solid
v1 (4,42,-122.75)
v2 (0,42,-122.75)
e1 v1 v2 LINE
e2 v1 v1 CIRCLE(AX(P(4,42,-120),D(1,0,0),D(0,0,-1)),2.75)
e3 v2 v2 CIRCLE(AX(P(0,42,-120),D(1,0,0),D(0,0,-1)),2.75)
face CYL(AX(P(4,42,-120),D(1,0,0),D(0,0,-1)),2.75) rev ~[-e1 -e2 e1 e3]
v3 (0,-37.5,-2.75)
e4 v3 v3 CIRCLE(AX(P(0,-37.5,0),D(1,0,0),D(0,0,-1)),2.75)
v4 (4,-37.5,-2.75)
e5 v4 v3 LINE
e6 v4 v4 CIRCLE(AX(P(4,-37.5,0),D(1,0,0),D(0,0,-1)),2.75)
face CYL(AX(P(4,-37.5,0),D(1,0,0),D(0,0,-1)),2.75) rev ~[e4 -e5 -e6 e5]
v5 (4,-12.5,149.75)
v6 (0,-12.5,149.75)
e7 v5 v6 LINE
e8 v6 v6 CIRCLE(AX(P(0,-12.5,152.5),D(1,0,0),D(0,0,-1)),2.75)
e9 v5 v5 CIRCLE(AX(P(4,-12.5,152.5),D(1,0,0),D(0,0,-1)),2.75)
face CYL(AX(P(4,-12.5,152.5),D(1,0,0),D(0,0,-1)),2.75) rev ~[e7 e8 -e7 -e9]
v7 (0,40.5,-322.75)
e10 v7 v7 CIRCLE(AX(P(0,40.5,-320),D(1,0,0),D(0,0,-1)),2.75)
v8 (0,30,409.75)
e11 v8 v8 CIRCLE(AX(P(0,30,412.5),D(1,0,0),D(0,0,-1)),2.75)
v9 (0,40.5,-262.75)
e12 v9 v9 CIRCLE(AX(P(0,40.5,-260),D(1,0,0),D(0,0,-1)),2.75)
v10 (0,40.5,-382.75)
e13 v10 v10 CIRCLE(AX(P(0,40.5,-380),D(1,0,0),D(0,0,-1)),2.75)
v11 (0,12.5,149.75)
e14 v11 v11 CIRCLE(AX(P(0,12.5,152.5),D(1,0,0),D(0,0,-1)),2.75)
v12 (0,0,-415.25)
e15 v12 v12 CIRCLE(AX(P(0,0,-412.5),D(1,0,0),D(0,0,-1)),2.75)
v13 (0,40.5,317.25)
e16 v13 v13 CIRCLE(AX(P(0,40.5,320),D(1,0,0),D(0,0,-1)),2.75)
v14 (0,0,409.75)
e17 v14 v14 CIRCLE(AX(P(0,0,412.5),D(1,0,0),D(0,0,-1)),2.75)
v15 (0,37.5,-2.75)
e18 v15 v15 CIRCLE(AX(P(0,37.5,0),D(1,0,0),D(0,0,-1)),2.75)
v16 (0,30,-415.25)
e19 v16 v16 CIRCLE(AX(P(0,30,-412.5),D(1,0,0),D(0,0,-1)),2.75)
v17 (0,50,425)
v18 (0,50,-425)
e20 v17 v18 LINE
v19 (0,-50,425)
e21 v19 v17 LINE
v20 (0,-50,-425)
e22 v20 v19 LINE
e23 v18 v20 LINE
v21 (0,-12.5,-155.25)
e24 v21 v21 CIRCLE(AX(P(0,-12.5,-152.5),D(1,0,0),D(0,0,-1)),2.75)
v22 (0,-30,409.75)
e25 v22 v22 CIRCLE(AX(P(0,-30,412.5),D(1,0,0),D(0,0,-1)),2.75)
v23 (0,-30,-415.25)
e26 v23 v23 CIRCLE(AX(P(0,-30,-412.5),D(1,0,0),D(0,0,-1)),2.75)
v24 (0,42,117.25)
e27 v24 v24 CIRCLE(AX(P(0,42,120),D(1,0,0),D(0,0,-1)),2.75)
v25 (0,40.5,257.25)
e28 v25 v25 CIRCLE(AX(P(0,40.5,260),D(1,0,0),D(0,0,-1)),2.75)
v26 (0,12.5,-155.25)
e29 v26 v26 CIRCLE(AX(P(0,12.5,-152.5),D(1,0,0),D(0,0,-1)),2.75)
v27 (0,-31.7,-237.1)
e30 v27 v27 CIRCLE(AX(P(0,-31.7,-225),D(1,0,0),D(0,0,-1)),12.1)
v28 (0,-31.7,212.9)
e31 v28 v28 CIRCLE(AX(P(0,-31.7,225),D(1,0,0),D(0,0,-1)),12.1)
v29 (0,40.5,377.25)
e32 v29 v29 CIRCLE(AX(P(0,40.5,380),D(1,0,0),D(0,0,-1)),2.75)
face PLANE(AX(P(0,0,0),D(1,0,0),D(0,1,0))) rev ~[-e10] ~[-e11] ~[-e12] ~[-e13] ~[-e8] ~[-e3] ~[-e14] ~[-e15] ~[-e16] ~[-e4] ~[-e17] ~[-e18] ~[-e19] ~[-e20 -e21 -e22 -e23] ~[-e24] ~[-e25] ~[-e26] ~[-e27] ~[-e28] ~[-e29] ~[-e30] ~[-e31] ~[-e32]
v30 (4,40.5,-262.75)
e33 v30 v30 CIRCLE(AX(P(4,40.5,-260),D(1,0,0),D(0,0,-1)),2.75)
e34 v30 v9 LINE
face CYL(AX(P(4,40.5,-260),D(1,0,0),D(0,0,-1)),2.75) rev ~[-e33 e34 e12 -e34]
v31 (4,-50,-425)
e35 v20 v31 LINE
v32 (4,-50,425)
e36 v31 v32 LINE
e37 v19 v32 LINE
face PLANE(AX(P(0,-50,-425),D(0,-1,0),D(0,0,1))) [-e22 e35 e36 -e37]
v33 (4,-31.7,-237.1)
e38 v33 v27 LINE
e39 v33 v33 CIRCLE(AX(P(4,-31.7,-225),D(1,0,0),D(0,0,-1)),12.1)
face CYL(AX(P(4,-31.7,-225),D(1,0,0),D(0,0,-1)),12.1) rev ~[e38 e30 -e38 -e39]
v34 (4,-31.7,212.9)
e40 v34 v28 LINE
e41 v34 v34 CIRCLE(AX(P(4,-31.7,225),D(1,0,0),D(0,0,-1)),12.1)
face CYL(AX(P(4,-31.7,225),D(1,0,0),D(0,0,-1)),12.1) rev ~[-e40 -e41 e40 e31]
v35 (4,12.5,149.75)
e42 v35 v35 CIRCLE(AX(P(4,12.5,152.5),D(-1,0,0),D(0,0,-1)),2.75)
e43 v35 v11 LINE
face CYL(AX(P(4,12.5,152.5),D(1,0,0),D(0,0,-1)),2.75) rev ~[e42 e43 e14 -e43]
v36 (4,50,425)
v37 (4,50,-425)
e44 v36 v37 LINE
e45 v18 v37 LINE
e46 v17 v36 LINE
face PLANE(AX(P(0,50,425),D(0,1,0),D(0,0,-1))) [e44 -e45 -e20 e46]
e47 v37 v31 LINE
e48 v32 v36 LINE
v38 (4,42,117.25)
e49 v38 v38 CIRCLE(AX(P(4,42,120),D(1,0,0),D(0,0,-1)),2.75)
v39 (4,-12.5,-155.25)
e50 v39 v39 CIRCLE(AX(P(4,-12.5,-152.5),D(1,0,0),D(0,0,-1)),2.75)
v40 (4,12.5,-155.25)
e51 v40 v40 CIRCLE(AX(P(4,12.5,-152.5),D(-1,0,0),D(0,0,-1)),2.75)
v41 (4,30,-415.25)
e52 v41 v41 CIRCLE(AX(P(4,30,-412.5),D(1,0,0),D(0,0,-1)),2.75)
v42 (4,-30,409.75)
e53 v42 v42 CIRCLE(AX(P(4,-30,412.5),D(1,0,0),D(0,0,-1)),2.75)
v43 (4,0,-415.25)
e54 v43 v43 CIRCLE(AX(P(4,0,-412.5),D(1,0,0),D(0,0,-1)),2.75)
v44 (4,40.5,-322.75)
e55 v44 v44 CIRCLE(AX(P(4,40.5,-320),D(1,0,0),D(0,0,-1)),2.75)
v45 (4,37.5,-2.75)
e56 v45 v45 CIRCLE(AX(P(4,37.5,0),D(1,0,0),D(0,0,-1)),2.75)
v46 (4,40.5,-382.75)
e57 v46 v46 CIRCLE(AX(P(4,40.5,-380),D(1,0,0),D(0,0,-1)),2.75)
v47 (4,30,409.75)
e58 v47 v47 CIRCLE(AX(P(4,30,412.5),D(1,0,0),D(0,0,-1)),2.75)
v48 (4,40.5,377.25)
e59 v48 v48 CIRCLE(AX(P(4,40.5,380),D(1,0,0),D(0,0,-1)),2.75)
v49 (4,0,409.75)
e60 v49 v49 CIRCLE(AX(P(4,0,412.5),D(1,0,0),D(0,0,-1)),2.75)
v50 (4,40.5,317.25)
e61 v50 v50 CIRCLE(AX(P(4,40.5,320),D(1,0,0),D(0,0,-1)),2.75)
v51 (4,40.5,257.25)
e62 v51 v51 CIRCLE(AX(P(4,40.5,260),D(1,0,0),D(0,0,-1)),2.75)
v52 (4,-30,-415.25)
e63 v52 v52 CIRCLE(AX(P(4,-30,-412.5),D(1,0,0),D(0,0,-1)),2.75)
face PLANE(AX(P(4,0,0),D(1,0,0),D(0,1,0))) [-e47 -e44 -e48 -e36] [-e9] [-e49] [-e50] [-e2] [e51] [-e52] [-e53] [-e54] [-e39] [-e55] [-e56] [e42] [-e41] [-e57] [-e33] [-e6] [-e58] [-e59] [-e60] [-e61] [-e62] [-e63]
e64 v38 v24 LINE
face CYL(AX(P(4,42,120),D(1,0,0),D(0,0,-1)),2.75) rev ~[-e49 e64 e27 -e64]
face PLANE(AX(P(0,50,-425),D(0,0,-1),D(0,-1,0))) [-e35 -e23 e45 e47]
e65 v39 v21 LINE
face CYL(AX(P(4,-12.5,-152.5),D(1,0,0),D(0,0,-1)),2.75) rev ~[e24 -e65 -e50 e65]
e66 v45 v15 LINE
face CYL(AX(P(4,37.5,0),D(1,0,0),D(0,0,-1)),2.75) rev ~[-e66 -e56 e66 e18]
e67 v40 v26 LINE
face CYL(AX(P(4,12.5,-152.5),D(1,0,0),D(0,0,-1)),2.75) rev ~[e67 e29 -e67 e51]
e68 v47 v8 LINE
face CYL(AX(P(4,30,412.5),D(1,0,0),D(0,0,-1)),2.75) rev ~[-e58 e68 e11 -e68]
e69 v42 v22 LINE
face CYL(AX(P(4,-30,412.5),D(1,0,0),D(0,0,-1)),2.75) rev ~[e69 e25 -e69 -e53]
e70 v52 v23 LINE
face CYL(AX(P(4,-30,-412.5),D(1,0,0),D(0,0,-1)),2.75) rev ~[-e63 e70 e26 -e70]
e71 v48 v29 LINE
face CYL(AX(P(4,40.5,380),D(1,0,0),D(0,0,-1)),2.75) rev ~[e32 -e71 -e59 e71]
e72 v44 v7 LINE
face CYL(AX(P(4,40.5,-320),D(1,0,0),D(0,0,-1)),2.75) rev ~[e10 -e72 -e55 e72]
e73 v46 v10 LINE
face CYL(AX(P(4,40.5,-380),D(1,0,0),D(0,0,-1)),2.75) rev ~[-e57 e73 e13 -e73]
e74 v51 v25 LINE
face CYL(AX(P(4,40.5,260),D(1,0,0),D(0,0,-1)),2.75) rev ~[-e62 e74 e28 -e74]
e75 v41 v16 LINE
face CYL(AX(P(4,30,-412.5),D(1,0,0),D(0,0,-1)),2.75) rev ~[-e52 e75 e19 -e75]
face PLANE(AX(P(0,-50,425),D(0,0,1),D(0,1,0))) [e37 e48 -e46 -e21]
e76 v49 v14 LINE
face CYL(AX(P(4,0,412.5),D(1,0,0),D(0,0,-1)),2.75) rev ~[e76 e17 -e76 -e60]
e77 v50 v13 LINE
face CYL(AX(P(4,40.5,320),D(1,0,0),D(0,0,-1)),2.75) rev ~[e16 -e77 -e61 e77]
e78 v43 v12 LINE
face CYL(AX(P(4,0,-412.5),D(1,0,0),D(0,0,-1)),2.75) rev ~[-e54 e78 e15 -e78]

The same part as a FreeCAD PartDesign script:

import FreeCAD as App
import Part
import Sketcher


def add_polygon(sketch, points):
    """Adds a closed chain of lines whose ends are joined by coincident constraints."""
    first, n = sketch.GeometryCount, len(points)
    for a, b in zip(points, points[1:] + points[:1]):
        sketch.addGeometry(Part.LineSegment(App.Vector(*a, 0), App.Vector(*b, 0)), False)
    for i in range(n):
        sketch.addConstraint(Sketcher.Constraint("Coincident", first + i, 2, first + (i + 1) % n, 1))

doc = App.newDocument("Part")
body = doc.addObject("PartDesign::Body", "Body")

sketch1 = doc.addObject("Sketcher::SketchObject", "Sketch")
body.addObject(sketch1)
sketch1.AttachmentSupport = (doc.YZ_Plane, [""])
sketch1.MapMode = "FlatFace"
add_polygon(sketch1, [(50, 425), (-50, 425), (-50, -425), (50, -425)])
sketch1.addConstraint([
    Sketcher.Constraint("Horizontal", 0),
    Sketcher.Constraint("Vertical", 1),
    Sketcher.Constraint("Horizontal", 2),
    Sketcher.Constraint("Vertical", 3),
    Sketcher.Constraint("Symmetric", 0, 2, 2, 2, -1, 1),
    Sketcher.Constraint("DistanceX", 0, 2, 0, 1, 100.0),
    Sketcher.Constraint("DistanceY", 1, 2, 1, 1, 850.0),
])
pad1 = doc.addObject("PartDesign::Pad", "Pad")
body.addObject(pad1)
pad1.Profile = sketch1
pad1.Length = 4

sketch2 = doc.addObject("Sketcher::SketchObject", "Sketch001")
body.addObject(sketch2)
sketch2.AttachmentSupport = (doc.YZ_Plane, [""])
sketch2.MapMode = "FlatFace"
sketch2.AttachmentOffset = App.Placement(App.Vector(0, 0, 4), App.Rotation())
sketch2.addGeometry([
    Part.Circle(App.Vector(-31.7, 225, 0), App.Vector(0, 0, 1), 12.1),
    Part.Circle(App.Vector(-31.7, -225, 0), App.Vector(0, 0, 1), 12.1),
], False)
sketch2.addConstraint([
    Sketcher.Constraint("Equal", 0, 1),
    Sketcher.Constraint("Symmetric", 0, 3, 1, 3, -1),
    Sketcher.Constraint("Diameter", 0, 24.2),
    Sketcher.Constraint("DistanceY", -1, 1, 0, 3, 225.0),
    Sketcher.Constraint("DistanceX", 0, 3, -1, 1, 31.7),
])
pocket1 = doc.addObject("PartDesign::Pocket", "Pocket")
body.addObject(pocket1)
pocket1.Profile = sketch2
pocket1.Type = "ThroughAll"

sketch3 = doc.addObject("Sketcher::SketchObject", "Sketch002")
body.addObject(sketch3)
sketch3.AttachmentSupport = (doc.YZ_Plane, [""])
sketch3.MapMode = "FlatFace"
sketch3.AttachmentOffset = App.Placement(App.Vector(0, 0, 4), App.Rotation())
sketch3.addGeometry([
    Part.Circle(App.Vector(42, -120, 0), App.Vector(0, 0, 1), 2.75),
    Part.Circle(App.Vector(37.5, 0, 0), App.Vector(0, 0, 1), 2.75),
    Part.Circle(App.Vector(0, -412.5, 0), App.Vector(0, 0, 1), 2.75),
    Part.Circle(App.Vector(-30, -412.5, 0), App.Vector(0, 0, 1), 2.75),
    Part.Circle(App.Vector(40.5, -260, 0), App.Vector(0, 0, 1), 2.75),
    Part.Circle(App.Vector(40.5, -320, 0), App.Vector(0, 0, 1), 2.75),
    Part.Circle(App.Vector(12.5, -152.5, 0), App.Vector(0, 0, 1), 2.75),
    Part.Circle(App.Vector(12.5, 152.5, 0), App.Vector(0, 0, 1), 2.75),
    Part.Circle(App.Vector(-12.5, -152.5, 0), App.Vector(0, 0, 1), 2.75),
    Part.Circle(App.Vector(-12.5, 152.5, 0), App.Vector(0, 0, 1), 2.75),
    Part.Circle(App.Vector(-37.5, 0, 0), App.Vector(0, 0, 1), 2.75),
], False)
sketch3.addConstraint([
    Sketcher.Constraint("Equal", 0, 1),
    Sketcher.Constraint("Equal", 1, 2),
    Sketcher.Constraint("Equal", 2, 3),
    Sketcher.Constraint("Equal", 3, 4),
    Sketcher.Constraint("Equal", 4, 5),
    Sketcher.Constraint("Equal", 5, 6),
    Sketcher.Constraint("Equal", 6, 7),
    Sketcher.Constraint("Equal", 7, 8),
    Sketcher.Constraint("Equal", 8, 9),
    Sketcher.Constraint("Equal", 9, 10),
    Sketcher.Constraint("Symmetric", 7, 3, 8, 3, -1, 1),
    Sketcher.Constraint("Symmetric", 6, 3, 9, 3, -1, 1),
    Sketcher.Constraint("Symmetric", 1, 3, 10, 3, -1, 1),
    Sketcher.Constraint("Symmetric", 6, 3, 8, 3, -2),
    Sketcher.Constraint("PointOnObject", 1, 3, -1),
    Sketcher.Constraint("PointOnObject", 2, 3, -2),
    Sketcher.Constraint("Horizontal", 2, 3, 3, 3),
    Sketcher.Constraint("Vertical", 4, 3, 5, 3),
    Sketcher.Constraint("Diameter", 0, 5.5),
    Sketcher.Constraint("DistanceX", -1, 1, 0, 3, 42.0),
    Sketcher.Constraint("DistanceY", 0, 3, -1, 1, 120.0),
    Sketcher.Constraint("DistanceX", 3, 3, -1, 1, 30.0),
    Sketcher.Constraint("DistanceY", 4, 3, -1, 1, 260.0),
    Sketcher.Constraint("DistanceY", 5, 3, -1, 1, 320.0),
    Sketcher.Constraint("DistanceX", 1, 3, 4, 3, 3.0),
    Sketcher.Constraint("DistanceX", 6, 3, 4, 3, 28.0),
    Sketcher.Constraint("DistanceY", 2, 3, 6, 3, 260.0),
    Sketcher.Constraint("DistanceY", 6, 3, 7, 3, 305.0),
    Sketcher.Constraint("DistanceX", 8, 3, 6, 3, 25.0),
])
pocket2 = doc.addObject("PartDesign::Pocket", "Pocket001")
body.addObject(pocket2)
pocket2.Profile = sketch3
pocket2.Length = 10

sketch4 = doc.addObject("Sketcher::SketchObject", "Sketch003")
body.addObject(sketch4)
sketch4.AttachmentSupport = (doc.YZ_Plane, [""])
sketch4.MapMode = "FlatFace"
sketch4.AttachmentOffset = App.Placement(App.Vector(0, 0, 4), App.Rotation())
sketch4.addGeometry([
    Part.Circle(App.Vector(42, -120, 0), App.Vector(0, 0, 1), 2.75),
    Part.Circle(App.Vector(37.5, 0, 0), App.Vector(0, 0, 1), 2.75),
    Part.Circle(App.Vector(42, 120, 0), App.Vector(0, 0, 1), 2.75),
    Part.Circle(App.Vector(12.5, -152.5, 0), App.Vector(0, 0, 1), 2.75),
    Part.Circle(App.Vector(-12.5, -152.5, 0), App.Vector(0, 0, 1), 2.75),
    Part.Circle(App.Vector(12.5, 152.5, 0), App.Vector(0, 0, 1), 2.75),
    Part.Circle(App.Vector(-12.5, 152.5, 0), App.Vector(0, 0, 1), 2.75),
    Part.Circle(App.Vector(30, 412.5, 0), App.Vector(0, 0, 1), 2.75),
    Part.Circle(App.Vector(0, 412.5, 0), App.Vector(0, 0, 1), 2.75),
    Part.Circle(App.Vector(-30, 412.5, 0), App.Vector(0, 0, 1), 2.75),
    Part.Circle(App.Vector(30, -412.5, 0), App.Vector(0, 0, 1), 2.75),
    Part.Circle(App.Vector(0, -412.5, 0), App.Vector(0, 0, 1), 2.75),
    Part.Circle(App.Vector(-30, -412.5, 0), App.Vector(0, 0, 1), 2.75),
    Part.Circle(App.Vector(40.5, -380, 0), App.Vector(0, 0, 1), 2.75),
    Part.Circle(App.Vector(40.5, -320, 0), App.Vector(0, 0, 1), 2.75),
    Part.Circle(App.Vector(40.5, -260, 0), App.Vector(0, 0, 1), 2.75),
    Part.Circle(App.Vector(40.5, 380, 0), App.Vector(0, 0, 1), 2.75),
    Part.Circle(App.Vector(40.5, 320, 0), App.Vector(0, 0, 1), 2.75),
    Part.Circle(App.Vector(40.5, 260, 0), App.Vector(0, 0, 1), 2.75),
], False)
sketch4.addConstraint([
    Sketcher.Constraint("Equal", 0, 1),
    Sketcher.Constraint("Equal", 1, 2),
    Sketcher.Constraint("Equal", 2, 3),
    Sketcher.Constraint("Equal", 3, 4),
    Sketcher.Constraint("Equal", 4, 5),
    Sketcher.Constraint("Equal", 5, 6),
    Sketcher.Constraint("Equal", 6, 7),
    Sketcher.Constraint("Equal", 7, 8),
    Sketcher.Constraint("Equal", 8, 9),
    Sketcher.Constraint("Equal", 9, 10),
    Sketcher.Constraint("Equal", 10, 11),
    Sketcher.Constraint("Equal", 11, 12),
    Sketcher.Constraint("Equal", 12, 13),
    Sketcher.Constraint("Equal", 13, 14),
    Sketcher.Constraint("Equal", 14, 15),
    Sketcher.Constraint("Equal", 15, 16),
    Sketcher.Constraint("Equal", 16, 17),
    Sketcher.Constraint("Equal", 17, 18),
    Sketcher.Constraint("Symmetric", 4, 3, 5, 3, -1, 1),
    Sketcher.Constraint("Symmetric", 3, 3, 6, 3, -1, 1),
    Sketcher.Constraint("Symmetric", 9, 3, 10, 3, -1, 1),
    Sketcher.Constraint("Symmetric", 8, 3, 11, 3, -1, 1),
    Sketcher.Constraint("Symmetric", 7, 3, 12, 3, -1, 1),
    Sketcher.Constraint("Symmetric", 3, 3, 4, 3, -2),
    Sketcher.Constraint("Symmetric", 7, 3, 9, 3, -2),
    Sketcher.Constraint("Symmetric", 0, 3, 2, 3, -1),
    Sketcher.Constraint("Symmetric", 13, 3, 16, 3, -1),
    Sketcher.Constraint("Symmetric", 14, 3, 17, 3, -1),
    Sketcher.Constraint("Symmetric", 15, 3, 18, 3, -1),
    Sketcher.Constraint("PointOnObject", 1, 3, -1),
    Sketcher.Constraint("PointOnObject", 8, 3, -2),
    Sketcher.Constraint("Horizontal", 7, 3, 8, 3),
    Sketcher.Constraint("Vertical", 13, 3, 14, 3),
    Sketcher.Constraint("Vertical", 14, 3, 15, 3),
    Sketcher.Constraint("Diameter", 0, 5.5),
    Sketcher.Constraint("DistanceX", -1, 1, 0, 3, 42.0),
    Sketcher.Constraint("DistanceY", 0, 3, -1, 1, 120.0),
    Sketcher.Constraint("DistanceX", -1, 1, 7, 3, 30.0),
    Sketcher.Constraint("DistanceY", 13, 3, -1, 1, 380.0),
    Sketcher.Constraint("DistanceY", 14, 3, -1, 1, 320.0),
    Sketcher.Constraint("DistanceY", 15, 3, -1, 1, 260.0),
    Sketcher.Constraint("DistanceX", 3, 3, 1, 3, 25.0),
    Sketcher.Constraint("DistanceX", 4, 3, 3, 3, 25.0),
    Sketcher.Constraint("DistanceY", 3, 3, 5, 3, 305.0),
    Sketcher.Constraint("DistanceY", 5, 3, 7, 3, 260.0),
    Sketcher.Constraint("DistanceX", 3, 3, 13, 3, 28.0),
])
pocket3 = doc.addObject("PartDesign::Pocket", "Pocket002")
body.addObject(pocket3)
pocket3.Profile = sketch4
pocket3.Type = "ThroughAll"

doc.recompute()
